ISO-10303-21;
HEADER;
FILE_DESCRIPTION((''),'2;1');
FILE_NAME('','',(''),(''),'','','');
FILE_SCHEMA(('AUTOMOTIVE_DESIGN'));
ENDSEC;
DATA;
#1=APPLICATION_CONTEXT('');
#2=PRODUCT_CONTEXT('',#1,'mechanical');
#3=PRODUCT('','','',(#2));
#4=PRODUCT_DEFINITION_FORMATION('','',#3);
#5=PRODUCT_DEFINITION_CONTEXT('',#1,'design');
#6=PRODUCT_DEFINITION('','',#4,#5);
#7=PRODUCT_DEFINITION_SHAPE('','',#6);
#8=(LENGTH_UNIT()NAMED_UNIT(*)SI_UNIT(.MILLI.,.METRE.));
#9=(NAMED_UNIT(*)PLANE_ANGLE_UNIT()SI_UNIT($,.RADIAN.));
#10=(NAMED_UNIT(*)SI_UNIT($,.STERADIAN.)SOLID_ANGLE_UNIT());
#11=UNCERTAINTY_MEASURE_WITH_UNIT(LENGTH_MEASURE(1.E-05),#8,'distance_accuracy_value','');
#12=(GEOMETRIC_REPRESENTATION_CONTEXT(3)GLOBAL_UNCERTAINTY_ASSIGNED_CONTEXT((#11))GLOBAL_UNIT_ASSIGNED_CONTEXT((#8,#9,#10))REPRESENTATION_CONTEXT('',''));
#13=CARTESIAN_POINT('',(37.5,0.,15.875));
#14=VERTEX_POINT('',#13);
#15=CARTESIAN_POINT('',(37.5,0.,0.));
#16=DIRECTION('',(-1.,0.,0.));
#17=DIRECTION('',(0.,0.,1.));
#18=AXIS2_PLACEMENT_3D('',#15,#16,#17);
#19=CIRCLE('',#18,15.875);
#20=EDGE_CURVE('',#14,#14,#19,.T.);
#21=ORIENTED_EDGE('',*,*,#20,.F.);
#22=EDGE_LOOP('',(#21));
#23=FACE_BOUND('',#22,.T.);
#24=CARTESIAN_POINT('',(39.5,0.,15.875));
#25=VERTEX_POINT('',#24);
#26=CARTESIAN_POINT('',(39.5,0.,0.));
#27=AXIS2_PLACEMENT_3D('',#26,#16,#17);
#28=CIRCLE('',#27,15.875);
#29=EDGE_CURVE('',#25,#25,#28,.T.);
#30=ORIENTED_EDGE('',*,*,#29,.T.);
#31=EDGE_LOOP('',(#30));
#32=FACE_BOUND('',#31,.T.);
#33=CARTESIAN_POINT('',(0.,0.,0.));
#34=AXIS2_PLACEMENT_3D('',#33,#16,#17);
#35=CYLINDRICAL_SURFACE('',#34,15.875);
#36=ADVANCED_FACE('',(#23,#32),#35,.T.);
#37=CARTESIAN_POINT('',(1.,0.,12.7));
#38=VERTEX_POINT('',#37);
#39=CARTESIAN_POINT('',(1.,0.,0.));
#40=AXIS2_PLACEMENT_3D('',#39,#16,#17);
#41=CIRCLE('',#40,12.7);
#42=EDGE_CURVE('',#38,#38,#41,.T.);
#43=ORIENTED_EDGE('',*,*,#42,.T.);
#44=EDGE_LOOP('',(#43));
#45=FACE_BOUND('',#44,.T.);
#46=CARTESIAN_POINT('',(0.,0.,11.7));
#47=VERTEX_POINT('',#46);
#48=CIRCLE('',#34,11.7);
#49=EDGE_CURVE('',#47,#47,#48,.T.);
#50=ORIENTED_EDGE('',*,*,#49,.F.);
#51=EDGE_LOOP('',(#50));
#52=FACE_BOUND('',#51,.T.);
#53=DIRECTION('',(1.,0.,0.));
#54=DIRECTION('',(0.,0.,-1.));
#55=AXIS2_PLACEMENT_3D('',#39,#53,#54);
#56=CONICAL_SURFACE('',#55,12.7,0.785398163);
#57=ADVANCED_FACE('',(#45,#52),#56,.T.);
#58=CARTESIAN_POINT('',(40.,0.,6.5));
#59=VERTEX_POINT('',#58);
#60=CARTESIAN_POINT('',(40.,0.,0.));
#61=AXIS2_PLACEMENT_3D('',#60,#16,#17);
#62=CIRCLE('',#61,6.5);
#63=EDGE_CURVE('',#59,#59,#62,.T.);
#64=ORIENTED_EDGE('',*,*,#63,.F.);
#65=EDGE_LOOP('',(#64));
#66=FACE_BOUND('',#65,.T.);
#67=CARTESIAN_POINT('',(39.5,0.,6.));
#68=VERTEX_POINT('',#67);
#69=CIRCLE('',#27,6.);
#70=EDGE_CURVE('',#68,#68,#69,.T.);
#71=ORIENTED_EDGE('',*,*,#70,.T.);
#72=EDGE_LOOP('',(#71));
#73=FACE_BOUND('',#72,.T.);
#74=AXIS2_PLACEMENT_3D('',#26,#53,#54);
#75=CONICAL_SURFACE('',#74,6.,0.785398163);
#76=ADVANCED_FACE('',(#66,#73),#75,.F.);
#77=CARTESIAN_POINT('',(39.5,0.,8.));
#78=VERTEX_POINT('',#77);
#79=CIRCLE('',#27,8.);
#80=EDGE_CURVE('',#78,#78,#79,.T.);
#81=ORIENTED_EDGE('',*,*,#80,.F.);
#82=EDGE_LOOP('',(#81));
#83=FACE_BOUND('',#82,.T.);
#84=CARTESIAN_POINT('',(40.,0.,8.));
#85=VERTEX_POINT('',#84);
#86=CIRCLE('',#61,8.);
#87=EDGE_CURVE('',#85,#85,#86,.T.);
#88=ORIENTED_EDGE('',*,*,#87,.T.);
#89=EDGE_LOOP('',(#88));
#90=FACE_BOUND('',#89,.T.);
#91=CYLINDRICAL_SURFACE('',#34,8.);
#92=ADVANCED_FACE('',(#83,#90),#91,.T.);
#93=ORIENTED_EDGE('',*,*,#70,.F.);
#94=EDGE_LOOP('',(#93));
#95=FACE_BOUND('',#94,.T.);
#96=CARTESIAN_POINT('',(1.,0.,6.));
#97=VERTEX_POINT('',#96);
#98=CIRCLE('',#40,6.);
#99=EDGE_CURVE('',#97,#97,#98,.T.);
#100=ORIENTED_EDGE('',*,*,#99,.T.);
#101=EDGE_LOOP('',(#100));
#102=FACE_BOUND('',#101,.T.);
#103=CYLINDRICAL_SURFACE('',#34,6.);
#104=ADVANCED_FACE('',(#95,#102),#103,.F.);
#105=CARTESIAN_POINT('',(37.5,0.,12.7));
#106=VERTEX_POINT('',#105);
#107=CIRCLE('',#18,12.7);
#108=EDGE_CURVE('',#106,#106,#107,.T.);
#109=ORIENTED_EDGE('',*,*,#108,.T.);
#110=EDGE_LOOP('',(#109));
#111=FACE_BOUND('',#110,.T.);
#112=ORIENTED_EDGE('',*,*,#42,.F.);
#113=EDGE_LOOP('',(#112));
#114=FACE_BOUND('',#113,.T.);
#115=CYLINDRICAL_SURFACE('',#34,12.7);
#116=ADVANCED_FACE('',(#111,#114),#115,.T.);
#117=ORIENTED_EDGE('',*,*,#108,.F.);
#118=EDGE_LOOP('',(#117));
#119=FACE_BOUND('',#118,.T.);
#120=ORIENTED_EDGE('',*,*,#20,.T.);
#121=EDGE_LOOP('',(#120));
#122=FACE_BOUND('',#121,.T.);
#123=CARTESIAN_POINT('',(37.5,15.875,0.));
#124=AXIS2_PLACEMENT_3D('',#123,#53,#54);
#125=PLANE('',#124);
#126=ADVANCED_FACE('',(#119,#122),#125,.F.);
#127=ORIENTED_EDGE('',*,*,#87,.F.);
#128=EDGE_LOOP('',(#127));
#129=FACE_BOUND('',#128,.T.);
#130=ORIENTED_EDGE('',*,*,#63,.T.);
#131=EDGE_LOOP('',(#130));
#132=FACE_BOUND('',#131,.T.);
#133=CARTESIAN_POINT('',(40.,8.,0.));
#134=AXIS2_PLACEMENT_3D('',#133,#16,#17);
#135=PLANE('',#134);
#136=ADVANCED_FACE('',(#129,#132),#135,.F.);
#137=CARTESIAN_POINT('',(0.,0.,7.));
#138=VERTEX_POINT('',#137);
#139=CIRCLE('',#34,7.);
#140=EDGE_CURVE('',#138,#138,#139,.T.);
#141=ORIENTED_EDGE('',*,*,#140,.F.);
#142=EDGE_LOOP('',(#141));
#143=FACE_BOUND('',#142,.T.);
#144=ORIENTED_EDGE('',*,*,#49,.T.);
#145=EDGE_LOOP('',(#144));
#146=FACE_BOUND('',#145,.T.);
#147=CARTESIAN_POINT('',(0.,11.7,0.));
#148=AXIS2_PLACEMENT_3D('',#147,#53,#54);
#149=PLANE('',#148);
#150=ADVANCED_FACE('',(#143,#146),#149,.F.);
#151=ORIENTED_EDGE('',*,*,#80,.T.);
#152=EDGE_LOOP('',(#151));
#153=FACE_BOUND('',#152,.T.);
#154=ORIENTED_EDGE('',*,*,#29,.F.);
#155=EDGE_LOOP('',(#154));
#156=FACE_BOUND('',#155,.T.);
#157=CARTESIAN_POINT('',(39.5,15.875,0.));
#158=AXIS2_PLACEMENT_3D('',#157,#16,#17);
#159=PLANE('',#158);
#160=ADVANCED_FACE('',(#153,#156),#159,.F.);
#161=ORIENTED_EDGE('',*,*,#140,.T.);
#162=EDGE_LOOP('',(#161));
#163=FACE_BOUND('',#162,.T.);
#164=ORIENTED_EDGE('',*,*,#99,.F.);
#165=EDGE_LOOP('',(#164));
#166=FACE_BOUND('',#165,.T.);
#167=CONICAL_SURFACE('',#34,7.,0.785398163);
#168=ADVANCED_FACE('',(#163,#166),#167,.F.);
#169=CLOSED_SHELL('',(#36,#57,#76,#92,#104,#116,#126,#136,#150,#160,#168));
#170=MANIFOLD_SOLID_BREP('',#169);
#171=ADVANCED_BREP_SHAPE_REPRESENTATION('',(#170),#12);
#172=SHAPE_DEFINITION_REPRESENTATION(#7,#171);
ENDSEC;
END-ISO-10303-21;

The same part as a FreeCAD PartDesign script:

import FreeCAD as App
import Part
import Sketcher
from FreeCAD import Vector


def add_polygon(sketch, points):
    """Adds a closed chain of lines whose ends are joined by coincident constraints."""
    first, n = sketch.GeometryCount, len(points)
    for a, b in zip(points, points[1:] + points[:1]):
        sketch.addGeometry(Part.LineSegment(App.Vector(*a, 0), App.Vector(*b, 0)), False)
    for i in range(n):
        sketch.addConstraint(Sketcher.Constraint("Coincident", first + i, 2, first + (i + 1) % n, 1))

doc = App.newDocument("Part")
body = doc.addObject("PartDesign::Body", "Body")

# Sketch on XY plane
sketch1 = body.newObject("Sketcher::SketchObject", "Sketch")
sketch1.AttachmentSupport = (doc.getObject("XY_Plane"), [""])
sketch1.MapMode = "FlatFace"
add_polygon(sketch1, [(37.5, 12.7), (1, 12.7), (0, 11.7), (0, 7), (1, 6), (39.5, 6), (40, 6.5), (40, 8), (39.5, 8), (39.5, 15.875), (37.5, 15.875)])  # lines 0-10
sketch1.addConstraint([
    Sketcher.Constraint("Horizontal", 0),
    Sketcher.Constraint("Vertical", 2),
    Sketcher.Constraint("Horizontal", 4),
    Sketcher.Constraint("Vertical", 6),
    Sketcher.Constraint("Horizontal", 7),
    Sketcher.Constraint("Vertical", 8),
    Sketcher.Constraint("Horizontal", 9),
    Sketcher.Constraint("Vertical", 10),
    Sketcher.Constraint("PointOnObject", 1, 2, -2),
    Sketcher.Constraint("Perpendicular", 1, 3),
    Sketcher.Constraint("Perpendicular", 3, 5),
    Sketcher.Constraint("Vertical", 0, 2, 3, 2),
    Sketcher.Constraint("Vertical", 4, 2, 7, 2),
    Sketcher.Constraint("Equal", 1, 3),
    Sketcher.Constraint("DistanceX", 9, 2, 9, 1, 2.0),
    Sketcher.Constraint("DistanceX", 0, 2, 0, 1, 36.5),
    Sketcher.Constraint("DistanceX", 7, 2, 7, 1, 0.5),
    Sketcher.Constraint("DistanceY", 2, 2, 2, 1, 4.7),
    Sketcher.Constraint("DistanceY", 6, 1, 6, 2, 1.5),
    Sketcher.Constraint("DistanceX", -1, 1, 0, 2, 1.0),
    Sketcher.Constraint("DistanceY", -1, 1, 2, 2, 7.0),
    Sketcher.Constraint("DistanceY", 8, 1, 8, 2, 7.875),
])
revolution = body.newObject("PartDesign::Revolution", "Revolution")
revolution.Profile = sketch1
revolution.ReferenceAxis = (sketch1, ["H_Axis"])
revolution.Angle = 360

doc.recompute()
